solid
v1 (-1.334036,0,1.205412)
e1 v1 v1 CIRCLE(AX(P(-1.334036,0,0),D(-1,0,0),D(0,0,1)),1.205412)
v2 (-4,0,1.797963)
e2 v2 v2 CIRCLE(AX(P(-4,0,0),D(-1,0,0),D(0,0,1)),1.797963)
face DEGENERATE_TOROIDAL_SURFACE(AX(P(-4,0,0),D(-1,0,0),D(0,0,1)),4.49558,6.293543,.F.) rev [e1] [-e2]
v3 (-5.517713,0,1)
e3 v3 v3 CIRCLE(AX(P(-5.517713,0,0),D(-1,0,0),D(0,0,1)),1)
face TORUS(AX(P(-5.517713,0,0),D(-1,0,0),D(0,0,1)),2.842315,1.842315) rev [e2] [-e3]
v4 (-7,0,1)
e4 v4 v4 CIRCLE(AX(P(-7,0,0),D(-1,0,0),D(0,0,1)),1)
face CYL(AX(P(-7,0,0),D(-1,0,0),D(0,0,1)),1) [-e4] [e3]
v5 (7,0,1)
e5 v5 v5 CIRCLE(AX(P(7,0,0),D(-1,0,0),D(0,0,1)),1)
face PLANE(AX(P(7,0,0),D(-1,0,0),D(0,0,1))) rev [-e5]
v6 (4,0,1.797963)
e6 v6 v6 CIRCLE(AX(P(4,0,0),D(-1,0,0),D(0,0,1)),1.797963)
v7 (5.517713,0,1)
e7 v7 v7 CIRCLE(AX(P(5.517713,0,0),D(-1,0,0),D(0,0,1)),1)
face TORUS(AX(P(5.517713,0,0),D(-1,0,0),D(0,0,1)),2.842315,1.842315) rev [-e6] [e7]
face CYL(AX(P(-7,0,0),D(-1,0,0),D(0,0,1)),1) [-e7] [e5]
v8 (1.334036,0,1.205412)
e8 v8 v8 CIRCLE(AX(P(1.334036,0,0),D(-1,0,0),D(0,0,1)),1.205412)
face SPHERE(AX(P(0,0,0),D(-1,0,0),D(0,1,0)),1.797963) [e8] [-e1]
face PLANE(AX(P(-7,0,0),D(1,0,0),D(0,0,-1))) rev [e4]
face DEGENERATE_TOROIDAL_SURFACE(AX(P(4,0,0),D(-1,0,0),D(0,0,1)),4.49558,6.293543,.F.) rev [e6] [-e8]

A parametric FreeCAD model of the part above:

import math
import FreeCAD as App
import Part
import Sketcher
from FreeCAD import Vector

doc = App.newDocument("Part")
body = doc.addObject("PartDesign::Body", "Body")

sketch1 = doc.addObject("Sketcher::SketchObject", "Sketch")
body.addObject(sketch1)
sketch1.AttachmentSupport = (doc.XY_Plane, [""])
sketch1.MapMode = "FlatFace"
sketch1.addGeometry(Part.LineSegment(Vector(-7, 1, 0), Vector(-7, 0, 0)), False)
sketch1.addGeometry(Part.LineSegment(Vector(-7, 0, 0), Vector(7, 0, 0)), False)
sketch1.addGeometry(Part.LineSegment(Vector(7, 0, 0), Vector(7, 1, 0)), False)
sketch1.addGeometry(Part.LineSegment(Vector(7, 1, 0), Vector(5.517713, 1, 0)), False)
sketch1.addGeometry(Part.ArcOfCircle(Part.Circle(Vector(5.517713, 2.842315, 0), Vector(0, 0, 1), 1.842315), math.radians(-145.46778), math.radians(-90)), False)
sketch1.addGeometry(Part.ArcOfCircle(Part.Circle(Vector(4, -4.49558, 0), Vector(0, 0, 1), 6.293543), math.radians(90), math.radians(115.062277)), False)
sketch1.addGeometry(Part.ArcOfCircle(Part.Circle(Vector(0, 0, 0), Vector(0, 0, 1), 1.797963), math.radians(42.100444), math.radians(137.899556)), False)
sketch1.addGeometry(Part.ArcOfCircle(Part.Circle(Vector(-4, -4.49558, 0), Vector(0, 0, 1), 6.293543), math.radians(64.937723), math.radians(90)), False)
sketch1.addGeometry(Part.ArcOfCircle(Part.Circle(Vector(-5.517713, 2.842315, 0), Vector(0, 0, 1), 1.842315), math.radians(-90), math.radians(-34.53222)), False)
sketch1.addGeometry(Part.LineSegment(Vector(-5.517713, 1, 0), Vector(-7, 1, 0)), False)
sketch1.addConstraint(Sketcher.Constraint("Coincident", 0, 2, 1, 1))
sketch1.addConstraint(Sketcher.Constraint("Coincident", 1, 2, 2, 1))
sketch1.addConstraint(Sketcher.Constraint("Coincident", 2, 2, 3, 1))
sketch1.addConstraint(Sketcher.Constraint("Tangent", 3, 2, 4, 2))
sketch1.addConstraint(Sketcher.Constraint("Coincident", 4, 1, 5, 1))
sketch1.addConstraint(Sketcher.Constraint("Coincident", 5, 2, 6, 1))
sketch1.addConstraint(Sketcher.Constraint("Coincident", 6, 2, 7, 1))
sketch1.addConstraint(Sketcher.Constraint("Coincident", 7, 2, 8, 2))
sketch1.addConstraint(Sketcher.Constraint("Tangent", 8, 1, 9, 1))
sketch1.addConstraint(Sketcher.Constraint("Coincident", 9, 2, 0, 1))
sketch1.addConstraint(Sketcher.Constraint("Vertical", 0))
sketch1.addConstraint(Sketcher.Constraint("Horizontal", 1))
sketch1.addConstraint(Sketcher.Constraint("Vertical", 2))
sketch1.addConstraint(Sketcher.Constraint("Horizontal", 3))
sketch1.addConstraint(Sketcher.Constraint("Horizontal", 9))
sketch1.addConstraint(Sketcher.Constraint("Coincident", 6, 3, -1, 1))
sketch1.addConstraint(Sketcher.Constraint("Equal", 5, 7))
sketch1.addConstraint(Sketcher.Constraint("Equal", 4, 8))
sketch1.addConstraint(Sketcher.Constraint("Symmetric", 0, 2, 1, 2, -1, 1))
sketch1.addConstraint(Sketcher.Constraint("Symmetric", 5, 3, 7, 3, -2))
sketch1.addConstraint(Sketcher.Constraint("Symmetric", 4, 3, 8, 3, -2))
sketch1.addConstraint(Sketcher.Constraint("Vertical", 5, 3, 4, 1))
sketch1.addConstraint(Sketcher.Constraint("DistanceX", 1, 1, 1, 2, 14.0))
sketch1.addConstraint(Sketcher.Constraint("DistanceY", 0, 2, 0, 1, 1.0))
sketch1.addConstraint(Sketcher.Constraint("DistanceX", -1, 1, 5, 3, 4.0))
sketch1.addConstraint(Sketcher.Constraint("Radius", 4, 1.842315))
sketch1.addConstraint(Sketcher.Constraint("Radius", 5, 6.293543))
sketch1.addConstraint(Sketcher.Constraint("Radius", 6, 1.797963))
sketch1.addConstraint(Sketcher.Constraint("DistanceX", 3, 2, 3, 1, 1.482287))
revolution = doc.addObject("PartDesign::Revolution", "Revolution")
body.addObject(revolution)
revolution.Profile = sketch1
revolution.ReferenceAxis = (sketch1, ["H_Axis"])
revolution.Angle = 360

doc.recompute()
